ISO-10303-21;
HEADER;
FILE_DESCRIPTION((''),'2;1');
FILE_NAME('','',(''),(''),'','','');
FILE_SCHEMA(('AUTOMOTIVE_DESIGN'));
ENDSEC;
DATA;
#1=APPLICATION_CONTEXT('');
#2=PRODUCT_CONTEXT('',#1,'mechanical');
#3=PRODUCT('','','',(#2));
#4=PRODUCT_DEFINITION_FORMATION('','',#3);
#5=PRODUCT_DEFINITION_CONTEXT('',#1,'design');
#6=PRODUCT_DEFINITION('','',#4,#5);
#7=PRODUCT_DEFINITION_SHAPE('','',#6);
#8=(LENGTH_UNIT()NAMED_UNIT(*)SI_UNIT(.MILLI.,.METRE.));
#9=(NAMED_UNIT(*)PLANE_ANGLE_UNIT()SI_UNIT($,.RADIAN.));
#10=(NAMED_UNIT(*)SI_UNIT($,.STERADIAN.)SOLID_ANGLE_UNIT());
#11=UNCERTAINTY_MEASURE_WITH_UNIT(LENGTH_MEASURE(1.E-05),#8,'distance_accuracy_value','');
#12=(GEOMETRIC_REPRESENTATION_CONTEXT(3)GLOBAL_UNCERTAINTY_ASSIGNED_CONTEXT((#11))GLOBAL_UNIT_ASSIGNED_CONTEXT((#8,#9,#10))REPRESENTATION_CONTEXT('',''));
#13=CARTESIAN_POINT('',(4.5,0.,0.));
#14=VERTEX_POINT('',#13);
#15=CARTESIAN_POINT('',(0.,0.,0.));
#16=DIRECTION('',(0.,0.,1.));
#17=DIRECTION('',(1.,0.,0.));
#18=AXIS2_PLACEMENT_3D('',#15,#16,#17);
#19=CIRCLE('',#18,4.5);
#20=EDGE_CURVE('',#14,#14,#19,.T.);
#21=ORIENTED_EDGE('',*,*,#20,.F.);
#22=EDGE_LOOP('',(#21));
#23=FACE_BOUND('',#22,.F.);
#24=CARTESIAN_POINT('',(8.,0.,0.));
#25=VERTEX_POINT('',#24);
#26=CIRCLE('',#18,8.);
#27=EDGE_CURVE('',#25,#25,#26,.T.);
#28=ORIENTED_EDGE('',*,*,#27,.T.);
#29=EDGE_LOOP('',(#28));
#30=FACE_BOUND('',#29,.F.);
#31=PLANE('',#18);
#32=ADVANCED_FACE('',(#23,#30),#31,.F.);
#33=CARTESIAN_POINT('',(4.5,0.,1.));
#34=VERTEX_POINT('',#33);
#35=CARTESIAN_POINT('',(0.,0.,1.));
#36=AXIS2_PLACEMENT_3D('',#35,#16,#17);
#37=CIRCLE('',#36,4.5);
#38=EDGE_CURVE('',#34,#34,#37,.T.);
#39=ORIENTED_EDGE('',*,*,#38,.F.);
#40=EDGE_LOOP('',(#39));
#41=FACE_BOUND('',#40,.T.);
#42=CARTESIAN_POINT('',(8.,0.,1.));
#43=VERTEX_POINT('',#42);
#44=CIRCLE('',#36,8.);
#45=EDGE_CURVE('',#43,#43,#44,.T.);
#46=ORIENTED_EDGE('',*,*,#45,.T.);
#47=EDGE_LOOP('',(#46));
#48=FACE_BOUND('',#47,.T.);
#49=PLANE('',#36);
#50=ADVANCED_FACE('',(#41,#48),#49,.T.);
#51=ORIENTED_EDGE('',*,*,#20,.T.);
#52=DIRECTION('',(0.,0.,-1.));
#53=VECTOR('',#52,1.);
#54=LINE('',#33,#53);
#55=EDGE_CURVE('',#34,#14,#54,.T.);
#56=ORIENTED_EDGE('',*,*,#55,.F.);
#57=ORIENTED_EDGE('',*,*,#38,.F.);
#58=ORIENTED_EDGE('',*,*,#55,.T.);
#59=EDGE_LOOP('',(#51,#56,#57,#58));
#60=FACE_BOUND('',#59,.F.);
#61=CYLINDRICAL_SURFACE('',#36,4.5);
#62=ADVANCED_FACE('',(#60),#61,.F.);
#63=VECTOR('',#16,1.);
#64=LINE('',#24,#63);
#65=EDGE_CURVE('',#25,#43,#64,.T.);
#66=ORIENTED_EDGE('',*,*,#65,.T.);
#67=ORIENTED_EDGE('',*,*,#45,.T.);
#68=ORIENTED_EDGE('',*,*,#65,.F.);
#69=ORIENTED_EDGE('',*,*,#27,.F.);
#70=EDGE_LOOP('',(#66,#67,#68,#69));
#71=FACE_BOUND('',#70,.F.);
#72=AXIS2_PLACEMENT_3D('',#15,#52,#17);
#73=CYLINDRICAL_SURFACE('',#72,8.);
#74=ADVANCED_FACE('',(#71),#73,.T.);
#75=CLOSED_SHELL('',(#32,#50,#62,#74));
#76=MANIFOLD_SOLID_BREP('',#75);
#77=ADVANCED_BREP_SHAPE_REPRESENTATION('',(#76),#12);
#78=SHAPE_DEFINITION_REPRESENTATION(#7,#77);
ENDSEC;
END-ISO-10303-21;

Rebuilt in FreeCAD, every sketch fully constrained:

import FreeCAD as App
import Part
import Sketcher
from FreeCAD import Vector
Q = App.Units.Quantity

doc = App.newDocument("Part")
body = doc.addObject("PartDesign::Body", "Body")

# Sketch on XY plane
sketch1 = body.newObject("Sketcher::SketchObject", "Sketch")
sketch1.AttachmentSupport = (doc.getObject("XY_Plane"), [""])
sketch1.MapMode = "FlatFace"
sketch1.addGeometry(Part.Circle(Vector(0, 0, 0), Vector(0, 0, 1), 8), False)
sketch1.addConstraint(Sketcher.Constraint("Coincident", 0, 3, -1, 1))
sketch1.addConstraint(Sketcher.Constraint("Diameter", 0, Q("16 mm")))
pad1 = body.newObject("PartDesign::Pad", "Pad")
pad1.Profile = sketch1
pad1.Length = 1

# Sketch on XY plane
sketch2 = body.newObject("Sketcher::SketchObject", "Sketch001")
sketch2.AttachmentSupport = (doc.getObject("XY_Plane"), [""])
sketch2.MapMode = "FlatFace"
sketch2.AttachmentOffset = App.Placement(Vector(0, 0, 1), App.Rotation())
sketch2.addGeometry(Part.Circle(Vector(0, 0, 0), Vector(0, 0, 1), 4.5), False)
sketch2.addConstraint(Sketcher.Constraint("Coincident", 0, 3, -1, 1))
sketch2.addConstraint(Sketcher.Constraint("Diameter", 0, Q("9 mm")))
pocket1 = body.newObject("PartDesign::Pocket", "Pocket")
pocket1.Profile = sketch2
pocket1.Type = "ThroughAll"

doc.recompute()
